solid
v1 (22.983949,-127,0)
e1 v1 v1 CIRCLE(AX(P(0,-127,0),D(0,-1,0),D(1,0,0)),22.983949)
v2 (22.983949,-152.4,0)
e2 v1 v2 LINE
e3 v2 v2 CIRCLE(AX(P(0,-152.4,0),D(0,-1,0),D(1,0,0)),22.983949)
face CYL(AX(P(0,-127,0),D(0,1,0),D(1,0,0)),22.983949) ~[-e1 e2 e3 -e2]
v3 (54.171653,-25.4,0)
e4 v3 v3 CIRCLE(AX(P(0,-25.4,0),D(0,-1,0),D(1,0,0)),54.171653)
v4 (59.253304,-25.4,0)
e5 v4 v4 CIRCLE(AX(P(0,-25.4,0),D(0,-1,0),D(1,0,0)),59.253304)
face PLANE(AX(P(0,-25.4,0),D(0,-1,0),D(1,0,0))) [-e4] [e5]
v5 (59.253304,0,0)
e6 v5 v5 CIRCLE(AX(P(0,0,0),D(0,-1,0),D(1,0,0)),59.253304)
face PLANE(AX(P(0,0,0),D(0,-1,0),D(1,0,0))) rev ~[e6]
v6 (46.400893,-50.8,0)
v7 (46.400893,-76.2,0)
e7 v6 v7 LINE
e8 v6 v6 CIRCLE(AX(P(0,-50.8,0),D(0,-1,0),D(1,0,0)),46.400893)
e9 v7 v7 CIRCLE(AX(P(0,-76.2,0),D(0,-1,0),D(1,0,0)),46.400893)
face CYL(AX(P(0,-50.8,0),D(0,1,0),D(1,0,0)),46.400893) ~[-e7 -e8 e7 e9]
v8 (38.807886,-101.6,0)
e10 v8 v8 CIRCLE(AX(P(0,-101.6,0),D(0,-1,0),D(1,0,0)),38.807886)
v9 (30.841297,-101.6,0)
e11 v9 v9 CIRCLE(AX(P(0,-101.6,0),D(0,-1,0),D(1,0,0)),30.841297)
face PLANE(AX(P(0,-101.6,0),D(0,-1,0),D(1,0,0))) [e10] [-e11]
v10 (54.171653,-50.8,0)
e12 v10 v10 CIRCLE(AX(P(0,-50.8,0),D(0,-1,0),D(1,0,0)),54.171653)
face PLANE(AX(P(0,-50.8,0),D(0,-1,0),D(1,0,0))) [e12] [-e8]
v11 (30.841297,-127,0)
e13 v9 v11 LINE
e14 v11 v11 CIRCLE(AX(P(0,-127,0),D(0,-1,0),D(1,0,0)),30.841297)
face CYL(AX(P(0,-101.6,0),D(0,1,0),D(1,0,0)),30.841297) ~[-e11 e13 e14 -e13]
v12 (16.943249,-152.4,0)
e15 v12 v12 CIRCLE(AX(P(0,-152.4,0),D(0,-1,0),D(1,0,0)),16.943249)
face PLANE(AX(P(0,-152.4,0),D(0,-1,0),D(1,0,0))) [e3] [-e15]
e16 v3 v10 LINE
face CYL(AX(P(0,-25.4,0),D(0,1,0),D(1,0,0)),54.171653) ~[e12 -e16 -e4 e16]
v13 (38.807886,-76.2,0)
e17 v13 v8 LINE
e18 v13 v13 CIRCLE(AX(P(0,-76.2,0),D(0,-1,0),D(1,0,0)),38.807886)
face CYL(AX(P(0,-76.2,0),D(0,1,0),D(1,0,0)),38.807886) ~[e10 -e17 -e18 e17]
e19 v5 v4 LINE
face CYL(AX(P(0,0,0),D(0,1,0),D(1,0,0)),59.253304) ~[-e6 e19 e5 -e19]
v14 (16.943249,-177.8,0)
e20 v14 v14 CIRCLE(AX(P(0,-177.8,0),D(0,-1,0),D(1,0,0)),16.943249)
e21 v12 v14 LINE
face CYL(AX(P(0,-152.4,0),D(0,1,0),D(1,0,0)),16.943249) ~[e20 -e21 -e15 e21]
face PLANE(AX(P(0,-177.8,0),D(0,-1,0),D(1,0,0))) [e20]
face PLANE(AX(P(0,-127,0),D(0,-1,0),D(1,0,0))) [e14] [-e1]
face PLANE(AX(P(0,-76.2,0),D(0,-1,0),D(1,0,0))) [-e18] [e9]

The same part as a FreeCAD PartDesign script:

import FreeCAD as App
import Part
import Sketcher
Q = App.Units.Quantity

doc = App.newDocument("Part")
body = doc.addObject("PartDesign::Body", "Body")

sketch1 = body.newObject("Sketcher::SketchObject", "Sketch")
sketch1.AttachmentSupport = (doc.getObject("XZ_Plane"), [""])
sketch1.MapMode = "FlatFace"
sketch1.addGeometry(Part.Circle(App.Vector(0, 0, 0), App.Vector(0, 0, 1), 59), False)
sketch1.addConstraint(Sketcher.Constraint("Coincident", 0, 3, -1, 1))
sketch1.addConstraint(Sketcher.Constraint("Diameter", 0, 118.506608))
pad1 = body.newObject("PartDesign::Pad", "Pad")
pad1.Profile = sketch1
pad1.Length = Q("1 in")

sketch2 = body.newObject("Sketcher::SketchObject", "Sketch001")
sketch2.AttachmentSupport = (doc.getObject("XZ_Plane"), [""])
sketch2.MapMode = "FlatFace"
sketch2.AttachmentOffset = App.Placement(App.Vector(0, 0, 1 * 25.4), App.Rotation())
sketch2.addGeometry(Part.Circle(App.Vector(0, 0, 0), App.Vector(0, 0, 1), 54), False)
sketch2.addConstraint(Sketcher.Constraint("Coincident", 0, 3, -1, 1))
sketch2.addConstraint(Sketcher.Constraint("Diameter", 0, 108.343306))
pad2 = body.newObject("PartDesign::Pad", "Pad001")
pad2.Profile = sketch2
pad2.Length = Q("1 in")

sketch3 = body.newObject("Sketcher::SketchObject", "Sketch002")
sketch3.AttachmentSupport = (doc.getObject("XZ_Plane"), [""])
sketch3.MapMode = "FlatFace"
sketch3.AttachmentOffset = App.Placement(App.Vector(0, 0, 2 * 25.4), App.Rotation())
sketch3.addGeometry(Part.Circle(App.Vector(0, 0, 0), App.Vector(0, 0, 1), 46), False)
sketch3.addConstraint(Sketcher.Constraint("Coincident", 0, 3, -1, 1))
sketch3.addConstraint(Sketcher.Constraint("Diameter", 0, 92.801786))
pad3 = body.newObject("PartDesign::Pad", "Pad002")
pad3.Profile = sketch3
pad3.Length = Q("1 in")

sketch4 = body.newObject("Sketcher::SketchObject", "Sketch003")
sketch4.AttachmentSupport = (doc.getObject("XZ_Plane"), [""])
sketch4.MapMode = "FlatFace"
sketch4.AttachmentOffset = App.Placement(App.Vector(0, 0, 3 * 25.4), App.Rotation())
sketch4.addGeometry(Part.Circle(App.Vector(0, 0, 0), App.Vector(0, 0, 1), 39), False)
sketch4.addConstraint(Sketcher.Constraint("Coincident", 0, 3, -1, 1))
sketch4.addConstraint(Sketcher.Constraint("Diameter", 0, 77.615772))
pad4 = body.newObject("PartDesign::Pad", "Pad003")
pad4.Profile = sketch4
pad4.Length = Q("1 in")

sketch5 = body.newObject("Sketcher::SketchObject", "Sketch004")
sketch5.AttachmentSupport = (doc.getObject("XZ_Plane"), [""])
sketch5.MapMode = "FlatFace"
sketch5.AttachmentOffset = App.Placement(App.Vector(0, 0, 4 * 25.4), App.Rotation())
sketch5.addGeometry(Part.Circle(App.Vector(0, 0, 0), App.Vector(0, 0, 1), 31), False)
sketch5.addConstraint(Sketcher.Constraint("Coincident", 0, 3, -1, 1))
sketch5.addConstraint(Sketcher.Constraint("Diameter", 0, 61.682594))
pad5 = body.newObject("PartDesign::Pad", "Pad004")
pad5.Profile = sketch5
pad5.Length = Q("1 in")

sketch6 = body.newObject("Sketcher::SketchObject", "Sketch005")
sketch6.AttachmentSupport = (doc.getObject("XZ_Plane"), [""])
sketch6.MapMode = "FlatFace"
sketch6.AttachmentOffset = App.Placement(App.Vector(0, 0, 5 * 25.4), App.Rotation())
sketch6.addGeometry(Part.Circle(App.Vector(0, 0, 0), App.Vector(0, 0, 1), 23), False)
sketch6.addConstraint(Sketcher.Constraint("Coincident", 0, 3, -1, 1))
sketch6.addConstraint(Sketcher.Constraint("Diameter", 0, 45.967898))
pad6 = body.newObject("PartDesign::Pad", "Pad005")
pad6.Profile = sketch6
pad6.Length = Q("1 in")

sketch7 = body.newObject("Sketcher::SketchObject", "Sketch006")
sketch7.AttachmentSupport = (doc.getObject("XZ_Plane"), [""])
sketch7.MapMode = "FlatFace"
sketch7.AttachmentOffset = App.Placement(App.Vector(0, 0, 6 * 25.4), App.Rotation())
sketch7.addGeometry(Part.Circle(App.Vector(0, 0, 0), App.Vector(0, 0, 1), 17), False)
sketch7.addConstraint(Sketcher.Constraint("Coincident", 0, 3, -1, 1))
sketch7.addConstraint(Sketcher.Constraint("Diameter", 0, 33.886498))
pad7 = body.newObject("PartDesign::Pad", "Pad006")
pad7.Profile = sketch7
pad7.Length = Q("1 in")

doc.recompute()
